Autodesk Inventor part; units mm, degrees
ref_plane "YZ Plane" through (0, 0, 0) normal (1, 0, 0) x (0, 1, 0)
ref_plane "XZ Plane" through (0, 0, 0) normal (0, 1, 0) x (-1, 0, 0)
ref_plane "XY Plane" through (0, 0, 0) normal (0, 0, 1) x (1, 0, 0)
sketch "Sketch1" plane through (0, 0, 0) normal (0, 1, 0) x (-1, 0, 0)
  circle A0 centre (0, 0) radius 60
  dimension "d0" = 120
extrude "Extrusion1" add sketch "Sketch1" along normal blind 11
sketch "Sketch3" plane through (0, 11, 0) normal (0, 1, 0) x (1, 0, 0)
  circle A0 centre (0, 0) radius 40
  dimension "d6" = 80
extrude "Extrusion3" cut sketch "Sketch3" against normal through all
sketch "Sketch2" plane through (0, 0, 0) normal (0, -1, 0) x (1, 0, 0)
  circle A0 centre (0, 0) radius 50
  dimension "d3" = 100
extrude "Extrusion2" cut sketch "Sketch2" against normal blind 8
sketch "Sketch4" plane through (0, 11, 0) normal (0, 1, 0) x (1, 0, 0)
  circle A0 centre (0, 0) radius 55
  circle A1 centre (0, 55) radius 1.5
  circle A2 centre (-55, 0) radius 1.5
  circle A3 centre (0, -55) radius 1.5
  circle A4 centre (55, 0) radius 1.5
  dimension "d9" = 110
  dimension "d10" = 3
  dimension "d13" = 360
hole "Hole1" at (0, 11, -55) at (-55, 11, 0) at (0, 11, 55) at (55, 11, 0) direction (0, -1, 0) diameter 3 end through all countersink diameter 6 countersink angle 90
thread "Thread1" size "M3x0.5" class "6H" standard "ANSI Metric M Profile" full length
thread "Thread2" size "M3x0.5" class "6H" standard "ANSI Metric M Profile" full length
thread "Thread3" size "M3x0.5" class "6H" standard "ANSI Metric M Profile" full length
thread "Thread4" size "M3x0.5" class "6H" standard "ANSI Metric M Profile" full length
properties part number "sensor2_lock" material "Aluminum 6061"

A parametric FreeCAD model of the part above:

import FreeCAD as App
import Part
import Sketcher
from FreeCAD import Vector
Q = App.Units.Quantity

doc = App.newDocument("Part")
body = doc.addObject("PartDesign::Body", "Body")

sketch1 = doc.addObject("Sketcher::SketchObject", "Sketch")
body.addObject(sketch1)
sketch1.AttachmentSupport = (doc.XZ_Plane, [""])
sketch1.MapMode = "FlatFace"
sketch1.addGeometry(Part.Circle(Vector(0, 0, 0), Vector(0, 0, 1), 60), False)
sketch1.addConstraint([
    Sketcher.Constraint("Coincident", 0, 3, -1, 1),
    Sketcher.Constraint("Diameter", 0, Q("120 mm")),
])
pad1 = doc.addObject("PartDesign::Pad", "Pad")
body.addObject(pad1)
pad1.Profile = sketch1
pad1.Length = 11
pad1.Reversed = True

sketch2 = doc.addObject("Sketcher::SketchObject", "Sketch001")
body.addObject(sketch2)
sketch2.AttachmentSupport = (doc.XZ_Plane, [""])
sketch2.MapMode = "FlatFace"
sketch2.AttachmentOffset = App.Placement(Vector(0, 0, -11), App.Rotation())
sketch2.addGeometry(Part.Circle(Vector(0, 0, 0), Vector(0, 0, 1), 40), False)
sketch2.addConstraint([
    Sketcher.Constraint("Coincident", 0, 3, -1, 1),
    Sketcher.Constraint("Diameter", 0, Q("80 mm")),
])
pocket1 = doc.addObject("PartDesign::Pocket", "Pocket")
body.addObject(pocket1)
pocket1.Profile = sketch2
pocket1.Type = "ThroughAll"
pocket1.Reversed = True

sketch3 = doc.addObject("Sketcher::SketchObject", "Sketch002")
body.addObject(sketch3)
sketch3.AttachmentSupport = (doc.XZ_Plane, [""])
sketch3.MapMode = "FlatFace"
sketch3.addGeometry(Part.Circle(Vector(0, 0, 0), Vector(0, 0, 1), 50), False)
sketch3.addConstraint([
    Sketcher.Constraint("Coincident", 0, 3, -1, 1),
    Sketcher.Constraint("Diameter", 0, Q("100 mm")),
])
pocket2 = doc.addObject("PartDesign::Pocket", "Pocket001")
body.addObject(pocket2)
pocket2.Profile = sketch3
pocket2.Length = 8

sketch4 = doc.addObject("Sketcher::SketchObject", "Sketch003")
body.addObject(sketch4)
sketch4.AttachmentSupport = (doc.XZ_Plane, [""])
sketch4.MapMode = "FlatFace"
sketch4.AttachmentOffset = App.Placement(Vector(0, 0, -11), App.Rotation())
sketch4.addGeometry([
    Part.Circle(Vector(0, -55, 0), Vector(0, 0, 1), 1.5),
    Part.Circle(Vector(-55, 0, 0), Vector(0, 0, 1), 1.5),
    Part.Circle(Vector(0, 55, 0), Vector(0, 0, 1), 1.5),
    Part.Circle(Vector(55, 0, 0), Vector(0, 0, 1), 1.5),
], False)
sketch4.addConstraint([
    Sketcher.Constraint("Equal", 0, 1),
    Sketcher.Constraint("Equal", 1, 2),
    Sketcher.Constraint("Equal", 2, 3),
    Sketcher.Constraint("Symmetric", 0, 3, 2, 3, -1, 1),
    Sketcher.Constraint("Symmetric", 1, 3, 3, 3, -1, 1),
    Sketcher.Constraint("PointOnObject", 0, 3, -2),
    Sketcher.Constraint("PointOnObject", 1, 3, -1),
    Sketcher.Constraint("Diameter", 0, Q("3 mm")),
    Sketcher.Constraint("DistanceY", 0, 3, -1, 1, Q("55 mm")),
    Sketcher.Constraint("DistanceX", 1, 3, -1, 1, Q("55 mm")),
])
doc.recompute()
hole = doc.addObject("PartDesign::Hole", "Hole")
body.addObject(hole)
hole.Profile = sketch4
hole.ThreadType = "None"
hole.Diameter = 3
hole.DepthType = "ThroughAll"
hole.HoleCutType = "Countersink"
hole.HoleCutDiameter = 6
hole.HoleCutCountersinkAngle = 90
hole.Reversed = True

doc.recompute()
